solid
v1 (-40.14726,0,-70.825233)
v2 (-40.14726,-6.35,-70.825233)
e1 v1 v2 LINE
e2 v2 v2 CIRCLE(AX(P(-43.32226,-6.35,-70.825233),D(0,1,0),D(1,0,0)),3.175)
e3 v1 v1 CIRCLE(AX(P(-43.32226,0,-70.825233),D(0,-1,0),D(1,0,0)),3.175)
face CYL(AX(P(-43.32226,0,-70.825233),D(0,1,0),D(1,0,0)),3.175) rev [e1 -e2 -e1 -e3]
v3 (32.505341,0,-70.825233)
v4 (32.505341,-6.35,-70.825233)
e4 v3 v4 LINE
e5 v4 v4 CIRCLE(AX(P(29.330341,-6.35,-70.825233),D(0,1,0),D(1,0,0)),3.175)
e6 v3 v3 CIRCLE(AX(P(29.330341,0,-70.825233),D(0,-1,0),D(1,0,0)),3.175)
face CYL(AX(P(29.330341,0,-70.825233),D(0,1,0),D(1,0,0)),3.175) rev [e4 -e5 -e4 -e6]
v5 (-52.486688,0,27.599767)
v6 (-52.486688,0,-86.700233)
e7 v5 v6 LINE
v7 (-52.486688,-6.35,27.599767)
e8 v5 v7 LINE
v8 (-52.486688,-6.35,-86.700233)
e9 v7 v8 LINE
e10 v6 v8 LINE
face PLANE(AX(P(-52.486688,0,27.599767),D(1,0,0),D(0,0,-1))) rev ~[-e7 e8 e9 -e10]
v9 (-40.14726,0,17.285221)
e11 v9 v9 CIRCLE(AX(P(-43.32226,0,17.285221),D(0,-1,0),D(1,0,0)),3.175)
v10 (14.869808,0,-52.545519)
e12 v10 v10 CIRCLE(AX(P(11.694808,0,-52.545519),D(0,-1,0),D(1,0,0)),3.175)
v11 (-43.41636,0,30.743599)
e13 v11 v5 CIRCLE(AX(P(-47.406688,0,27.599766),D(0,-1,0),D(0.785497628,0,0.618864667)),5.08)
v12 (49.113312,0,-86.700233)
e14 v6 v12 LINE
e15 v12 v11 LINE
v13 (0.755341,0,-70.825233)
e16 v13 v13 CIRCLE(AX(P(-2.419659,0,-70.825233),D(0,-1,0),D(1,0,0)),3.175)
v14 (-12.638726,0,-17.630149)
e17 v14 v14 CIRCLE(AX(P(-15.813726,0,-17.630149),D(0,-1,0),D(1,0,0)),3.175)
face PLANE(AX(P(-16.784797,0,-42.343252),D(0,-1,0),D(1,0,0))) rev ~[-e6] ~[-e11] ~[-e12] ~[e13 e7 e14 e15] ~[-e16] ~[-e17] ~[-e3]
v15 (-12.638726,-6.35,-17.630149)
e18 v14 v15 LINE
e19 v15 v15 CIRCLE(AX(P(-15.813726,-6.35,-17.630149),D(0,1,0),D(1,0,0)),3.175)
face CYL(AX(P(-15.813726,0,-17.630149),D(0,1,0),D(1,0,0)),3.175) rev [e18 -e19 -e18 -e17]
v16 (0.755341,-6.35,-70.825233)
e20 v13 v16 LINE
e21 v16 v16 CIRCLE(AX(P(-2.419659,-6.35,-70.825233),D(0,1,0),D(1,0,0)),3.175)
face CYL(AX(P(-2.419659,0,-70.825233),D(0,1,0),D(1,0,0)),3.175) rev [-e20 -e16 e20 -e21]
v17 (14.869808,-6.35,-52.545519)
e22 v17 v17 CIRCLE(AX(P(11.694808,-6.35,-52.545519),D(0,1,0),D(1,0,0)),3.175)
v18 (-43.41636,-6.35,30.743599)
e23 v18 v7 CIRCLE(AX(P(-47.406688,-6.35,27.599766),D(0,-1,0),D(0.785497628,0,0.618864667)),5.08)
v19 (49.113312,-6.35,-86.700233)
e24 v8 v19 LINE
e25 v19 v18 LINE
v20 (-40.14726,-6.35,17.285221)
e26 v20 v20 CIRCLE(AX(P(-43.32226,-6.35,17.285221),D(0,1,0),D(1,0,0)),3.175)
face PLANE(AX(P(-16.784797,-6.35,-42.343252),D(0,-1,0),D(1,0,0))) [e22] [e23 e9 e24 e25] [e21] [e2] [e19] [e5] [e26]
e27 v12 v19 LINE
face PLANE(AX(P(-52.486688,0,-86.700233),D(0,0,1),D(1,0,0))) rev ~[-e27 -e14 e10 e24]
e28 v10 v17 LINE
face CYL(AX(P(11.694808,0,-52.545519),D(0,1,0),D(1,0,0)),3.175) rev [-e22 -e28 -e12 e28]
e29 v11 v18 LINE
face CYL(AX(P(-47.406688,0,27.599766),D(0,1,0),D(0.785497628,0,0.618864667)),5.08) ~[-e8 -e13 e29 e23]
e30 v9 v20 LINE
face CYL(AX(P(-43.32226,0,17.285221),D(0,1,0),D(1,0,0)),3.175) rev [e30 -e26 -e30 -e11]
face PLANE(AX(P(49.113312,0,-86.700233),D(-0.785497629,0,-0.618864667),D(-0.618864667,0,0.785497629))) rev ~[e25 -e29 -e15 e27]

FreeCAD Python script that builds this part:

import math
import FreeCAD as App
import Part
import Sketcher
from FreeCAD import Vector
Q = App.Units.Quantity

doc = App.newDocument("Part")
body = doc.addObject("PartDesign::Body", "Body")

# Sketch on XZ plane
sketch1 = doc.addObject("Sketcher::SketchObject", "Sketch")
body.addObject(sketch1)
sketch1.AttachmentSupport = (doc.XZ_Plane, [""])
sketch1.MapMode = "FlatFace"
sketch1.addGeometry([
    Part.ArcOfCircle(Part.Circle(Vector(-47, 28, 0), Vector(0, 0, 1), 5), math.radians(38), math.radians(180)),
    Part.LineSegment(Vector(-52, 28, 0), Vector(-52, -87, 0)),
    Part.LineSegment(Vector(-52, -87, 0), Vector(49, -87, 0)),
    Part.LineSegment(Vector(49, -87, 0), Vector(-43, 31, 0)),
], False)
sketch1.addConstraint([
    Sketcher.Constraint("Tangent", 0, 2, 1, 1),
    Sketcher.Constraint("Coincident", 1, 2, 2, 1),
    Sketcher.Constraint("Coincident", 2, 2, 3, 1),
    Sketcher.Constraint("Tangent", 3, 2, 0, 1),
    Sketcher.Constraint("Vertical", 1),
    Sketcher.Constraint("Horizontal", 2),
    Sketcher.Constraint("Radius", 0, Q("0.2 in")),
    Sketcher.Constraint("DistanceX", 2, 1, 2, 2, Q("4 in")),
    Sketcher.Constraint("DistanceY", 1, 2, 1, 1, Q("4.5 in")),
    Sketcher.Constraint("DistanceY", -1, 1, 3, 2, 30.743599),
    Sketcher.Constraint("DistanceX", 3, 2, -1, 1, 43.41636),
])
pad1 = doc.addObject("PartDesign::Pad", "Pad")
body.addObject(pad1)
pad1.Profile = sketch1
pad1.Length = Q("0.25 in")

# Sketch on XZ plane
sketch2 = doc.addObject("Sketcher::SketchObject", "Sketch001")
body.addObject(sketch2)
sketch2.AttachmentSupport = (doc.XZ_Plane, [""])
sketch2.MapMode = "FlatFace"
sketch2.addGeometry([
    Part.Circle(Vector(29.3, -70.8, 0), Vector(0, 0, 1), 3.2),  # 0
    Part.Circle(Vector(-2.4, -70.8, 0), Vector(0, 0, 1), 3.2),  # 1
    Part.Circle(Vector(11.7, -52.5, 0), Vector(0, 0, 1), 3.2),  # 2
    Part.Circle(Vector(-15.8, -17.6, 0), Vector(0, 0, 1), 3.2),  # 3
    Part.Circle(Vector(-43.3, 17.3, 0), Vector(0, 0, 1), 3.2),  # 4
    Part.Circle(Vector(-43.3, -70.8, 0), Vector(0, 0, 1), 3.2),  # 5
], False)
sketch2.addConstraint([
    Sketcher.Constraint("Equal", 0, 1),
    Sketcher.Constraint("Equal", 1, 2),
    Sketcher.Constraint("Equal", 2, 3),
    Sketcher.Constraint("Equal", 3, 4),
    Sketcher.Constraint("Equal", 4, 5),
    Sketcher.Constraint("Horizontal", 0, 3, 1, 3),
    Sketcher.Constraint("Horizontal", 1, 3, 5, 3),
    Sketcher.Constraint("Vertical", 4, 3, 5, 3),
    Sketcher.Constraint("Diameter", 0, Q("0.25 in")),
    Sketcher.Constraint("DistanceX", 1, 3, 0, 3, Q("1.25 in")),
    Sketcher.Constraint("DistanceX", 4, 3, 1, 3, 40.902601),
    Sketcher.Constraint("DistanceX", -1, 1, 0, 3, 29.330341),
    Sketcher.Constraint("DistanceY", 2, 3, -1, 1, 52.545519),
    Sketcher.Constraint("DistanceY", 3, 3, -1, 1, 17.630149),
    Sketcher.Constraint("DistanceY", -1, 1, 4, 3, 17.285221),
    Sketcher.Constraint("DistanceX", 4, 3, 2, 3, 55.017068),
    Sketcher.Constraint("DistanceY", 0, 3, -1, 1, 70.825233),
    Sketcher.Constraint("DistanceX", 3, 3, -1, 1, 15.813726),
])
pocket1 = doc.addObject("PartDesign::Pocket", "Pocket")
body.addObject(pocket1)
pocket1.Profile = sketch2
pocket1.Length = 43.312125
pocket1.Reversed = True

doc.recompute()
